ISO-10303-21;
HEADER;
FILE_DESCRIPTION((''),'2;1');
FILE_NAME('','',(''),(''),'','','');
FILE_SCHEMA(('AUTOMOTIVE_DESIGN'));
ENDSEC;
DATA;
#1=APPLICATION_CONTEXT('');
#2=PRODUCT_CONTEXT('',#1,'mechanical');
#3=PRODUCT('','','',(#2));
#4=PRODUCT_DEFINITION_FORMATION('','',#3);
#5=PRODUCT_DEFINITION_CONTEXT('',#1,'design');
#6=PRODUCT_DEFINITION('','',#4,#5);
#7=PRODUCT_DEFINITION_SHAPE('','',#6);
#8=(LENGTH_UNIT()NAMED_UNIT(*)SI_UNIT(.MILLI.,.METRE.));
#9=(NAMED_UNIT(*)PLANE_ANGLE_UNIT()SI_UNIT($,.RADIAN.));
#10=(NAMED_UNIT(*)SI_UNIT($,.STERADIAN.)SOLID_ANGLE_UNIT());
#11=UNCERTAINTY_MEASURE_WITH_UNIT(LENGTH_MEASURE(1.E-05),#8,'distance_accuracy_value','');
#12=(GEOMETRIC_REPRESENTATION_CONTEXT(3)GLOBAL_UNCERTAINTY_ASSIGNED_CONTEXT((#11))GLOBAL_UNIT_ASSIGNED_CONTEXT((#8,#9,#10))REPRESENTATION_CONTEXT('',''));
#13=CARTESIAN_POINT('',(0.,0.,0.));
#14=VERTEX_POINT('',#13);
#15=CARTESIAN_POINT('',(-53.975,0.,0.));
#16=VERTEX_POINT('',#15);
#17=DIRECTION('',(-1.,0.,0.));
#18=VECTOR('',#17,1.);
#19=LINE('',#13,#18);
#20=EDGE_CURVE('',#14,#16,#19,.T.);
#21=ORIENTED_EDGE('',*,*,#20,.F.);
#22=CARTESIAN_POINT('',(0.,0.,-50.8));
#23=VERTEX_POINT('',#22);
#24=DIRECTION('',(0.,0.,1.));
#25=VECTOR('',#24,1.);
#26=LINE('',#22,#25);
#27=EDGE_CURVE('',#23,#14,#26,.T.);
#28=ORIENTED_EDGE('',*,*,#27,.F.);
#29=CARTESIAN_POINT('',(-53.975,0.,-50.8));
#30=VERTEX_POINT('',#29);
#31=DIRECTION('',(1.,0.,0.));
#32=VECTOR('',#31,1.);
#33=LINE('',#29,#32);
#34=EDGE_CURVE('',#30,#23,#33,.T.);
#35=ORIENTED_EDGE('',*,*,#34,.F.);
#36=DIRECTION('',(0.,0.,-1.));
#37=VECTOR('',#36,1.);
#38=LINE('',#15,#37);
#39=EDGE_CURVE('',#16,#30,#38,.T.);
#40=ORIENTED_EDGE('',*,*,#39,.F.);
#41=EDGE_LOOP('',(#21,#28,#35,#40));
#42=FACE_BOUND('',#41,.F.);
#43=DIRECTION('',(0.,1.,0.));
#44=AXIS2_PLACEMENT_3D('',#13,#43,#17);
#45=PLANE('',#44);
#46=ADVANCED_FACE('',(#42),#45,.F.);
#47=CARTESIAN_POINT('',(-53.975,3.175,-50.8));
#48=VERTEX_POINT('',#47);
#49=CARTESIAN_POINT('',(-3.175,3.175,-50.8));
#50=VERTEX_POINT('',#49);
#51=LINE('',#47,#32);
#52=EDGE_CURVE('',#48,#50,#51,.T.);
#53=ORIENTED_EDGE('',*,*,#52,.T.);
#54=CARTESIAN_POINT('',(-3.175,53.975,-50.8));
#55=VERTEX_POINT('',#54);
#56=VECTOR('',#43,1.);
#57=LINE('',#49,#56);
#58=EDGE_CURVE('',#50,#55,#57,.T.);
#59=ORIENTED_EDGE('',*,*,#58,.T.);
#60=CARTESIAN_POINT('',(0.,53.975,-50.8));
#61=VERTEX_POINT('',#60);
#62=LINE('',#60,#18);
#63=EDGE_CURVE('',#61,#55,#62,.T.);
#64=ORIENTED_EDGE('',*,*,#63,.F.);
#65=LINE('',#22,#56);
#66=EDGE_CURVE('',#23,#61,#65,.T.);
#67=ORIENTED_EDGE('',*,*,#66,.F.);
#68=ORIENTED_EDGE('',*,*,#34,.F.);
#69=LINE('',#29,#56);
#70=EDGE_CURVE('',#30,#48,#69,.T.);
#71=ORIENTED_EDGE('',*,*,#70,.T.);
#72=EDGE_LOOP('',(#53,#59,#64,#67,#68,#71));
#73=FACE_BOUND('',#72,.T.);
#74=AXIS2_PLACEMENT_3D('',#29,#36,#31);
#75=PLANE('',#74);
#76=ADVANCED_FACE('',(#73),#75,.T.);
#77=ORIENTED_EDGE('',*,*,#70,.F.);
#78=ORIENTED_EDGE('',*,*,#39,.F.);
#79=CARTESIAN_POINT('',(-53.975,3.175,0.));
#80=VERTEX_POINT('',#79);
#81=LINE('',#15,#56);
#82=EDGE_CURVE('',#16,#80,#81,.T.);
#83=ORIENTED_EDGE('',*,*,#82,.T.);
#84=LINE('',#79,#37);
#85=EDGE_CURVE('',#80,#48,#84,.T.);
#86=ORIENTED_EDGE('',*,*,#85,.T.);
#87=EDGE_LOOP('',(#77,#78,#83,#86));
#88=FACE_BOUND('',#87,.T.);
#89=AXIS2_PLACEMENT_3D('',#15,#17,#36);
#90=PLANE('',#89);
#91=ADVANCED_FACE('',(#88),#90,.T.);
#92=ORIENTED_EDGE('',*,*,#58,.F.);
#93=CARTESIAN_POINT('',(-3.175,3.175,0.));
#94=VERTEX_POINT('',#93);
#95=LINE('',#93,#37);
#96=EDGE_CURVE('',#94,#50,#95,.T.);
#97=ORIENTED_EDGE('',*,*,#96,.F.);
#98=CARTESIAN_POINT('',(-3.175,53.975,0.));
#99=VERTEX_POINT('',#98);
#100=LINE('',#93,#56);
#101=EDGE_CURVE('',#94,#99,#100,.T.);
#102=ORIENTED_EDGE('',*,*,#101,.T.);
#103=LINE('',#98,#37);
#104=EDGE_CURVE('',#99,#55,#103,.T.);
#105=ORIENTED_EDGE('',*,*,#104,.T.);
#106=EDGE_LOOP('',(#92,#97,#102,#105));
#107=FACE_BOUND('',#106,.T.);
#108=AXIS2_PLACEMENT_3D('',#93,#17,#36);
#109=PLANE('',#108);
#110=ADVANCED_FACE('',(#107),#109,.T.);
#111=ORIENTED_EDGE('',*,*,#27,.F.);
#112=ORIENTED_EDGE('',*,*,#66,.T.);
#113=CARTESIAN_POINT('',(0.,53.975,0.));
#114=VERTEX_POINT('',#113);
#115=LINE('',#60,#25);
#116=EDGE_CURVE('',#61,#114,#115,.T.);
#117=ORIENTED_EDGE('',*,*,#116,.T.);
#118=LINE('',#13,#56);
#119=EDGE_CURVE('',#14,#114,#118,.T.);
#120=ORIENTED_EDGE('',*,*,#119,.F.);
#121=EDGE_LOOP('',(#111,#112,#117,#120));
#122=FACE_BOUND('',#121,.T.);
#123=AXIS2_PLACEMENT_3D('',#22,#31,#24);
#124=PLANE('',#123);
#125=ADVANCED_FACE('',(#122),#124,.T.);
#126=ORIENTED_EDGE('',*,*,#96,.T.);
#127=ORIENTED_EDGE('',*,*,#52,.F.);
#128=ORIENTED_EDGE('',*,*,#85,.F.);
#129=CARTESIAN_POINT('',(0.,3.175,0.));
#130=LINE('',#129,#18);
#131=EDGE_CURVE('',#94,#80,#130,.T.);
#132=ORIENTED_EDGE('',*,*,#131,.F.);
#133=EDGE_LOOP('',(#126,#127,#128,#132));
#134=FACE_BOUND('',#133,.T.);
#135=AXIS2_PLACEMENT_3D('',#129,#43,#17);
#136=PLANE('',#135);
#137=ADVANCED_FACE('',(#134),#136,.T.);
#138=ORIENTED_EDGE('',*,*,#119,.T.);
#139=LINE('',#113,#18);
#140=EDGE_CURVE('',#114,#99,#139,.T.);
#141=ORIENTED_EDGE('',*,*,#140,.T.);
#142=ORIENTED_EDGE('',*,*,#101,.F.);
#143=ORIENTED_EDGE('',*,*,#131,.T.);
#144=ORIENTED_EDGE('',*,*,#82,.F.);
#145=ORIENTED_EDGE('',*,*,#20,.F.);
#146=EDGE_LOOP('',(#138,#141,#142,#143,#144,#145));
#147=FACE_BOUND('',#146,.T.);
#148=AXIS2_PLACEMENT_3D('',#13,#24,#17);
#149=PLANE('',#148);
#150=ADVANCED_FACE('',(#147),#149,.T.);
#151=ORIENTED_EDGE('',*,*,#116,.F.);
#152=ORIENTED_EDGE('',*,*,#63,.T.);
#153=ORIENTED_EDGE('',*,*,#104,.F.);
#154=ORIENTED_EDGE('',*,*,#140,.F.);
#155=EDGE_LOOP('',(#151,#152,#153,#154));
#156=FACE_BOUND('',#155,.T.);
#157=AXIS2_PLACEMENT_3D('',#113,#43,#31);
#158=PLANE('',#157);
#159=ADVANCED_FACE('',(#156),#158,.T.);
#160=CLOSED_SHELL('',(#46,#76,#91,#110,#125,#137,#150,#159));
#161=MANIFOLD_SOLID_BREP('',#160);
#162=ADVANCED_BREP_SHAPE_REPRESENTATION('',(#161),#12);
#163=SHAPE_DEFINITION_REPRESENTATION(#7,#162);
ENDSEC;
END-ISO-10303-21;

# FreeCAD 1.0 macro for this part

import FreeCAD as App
import Part
import Sketcher

V = App.Vector
Q = App.Units.Quantity

doc = App.newDocument("Part")
body = doc.addObject("PartDesign::Body", "Body")

# Sketch on XZ plane
sketch1 = body.newObject("Sketcher::SketchObject", "Sketch")
sketch1.AttachmentSupport = (doc.getObject("XZ_Plane"), [""])
sketch1.MapMode = "FlatFace"
sketch1.addGeometry(Part.LineSegment(V(-54, 0, 0), V(0, 0, 0)), False)
sketch1.addGeometry(Part.LineSegment(V(0, 0, 0), V(0, -51, 0)), False)
sketch1.addGeometry(Part.LineSegment(V(0, -51, 0), V(-54, -51, 0)), False)
sketch1.addGeometry(Part.LineSegment(V(-54, -51, 0), V(-54, 0, 0)), False)
sketch1.addConstraint(Sketcher.Constraint("Coincident", 0, 2, 1, 1))
sketch1.addConstraint(Sketcher.Constraint("Coincident", 1, 2, 2, 1))
sketch1.addConstraint(Sketcher.Constraint("Coincident", 2, 2, 3, 1))
sketch1.addConstraint(Sketcher.Constraint("Coincident", 3, 2, 0, 1))
sketch1.addConstraint(Sketcher.Constraint("Horizontal", 0))
sketch1.addConstraint(Sketcher.Constraint("Vertical", 1))
sketch1.addConstraint(Sketcher.Constraint("Horizontal", 2))
sketch1.addConstraint(Sketcher.Constraint("Vertical", 3))
sketch1.addConstraint(Sketcher.Constraint("Coincident", 0, 2, -1, 1))
sketch1.addConstraint(Sketcher.Constraint("DistanceY", 1, 2, 1, 1, Q("2 in")))
sketch1.addConstraint(Sketcher.Constraint("DistanceX", 0, 1, 0, 2, Q("2.125 in")))
pad1 = body.newObject("PartDesign::Pad", "Pad")
pad1.Profile = sketch1
pad1.Length = Q("0.125 in")
pad1.Reversed = True

# Sketch on XZ plane
sketch2 = body.newObject("Sketcher::SketchObject", "Sketch001")
sketch2.AttachmentSupport = (doc.getObject("XZ_Plane"), [""])
sketch2.MapMode = "FlatFace"
sketch2.AttachmentOffset = App.Placement(V(0, 0, -0.125 * 25.4), App.Rotation())
sketch2.addGeometry(Part.LineSegment(V(0, 0, 0), V(0, -50.8, 0)), False)
sketch2.addGeometry(Part.LineSegment(V(0, -50.8, 0), V(-3.2, -50.8, 0)), False)
sketch2.addGeometry(Part.LineSegment(V(-3.2, -50.8, 0), V(-3.2, 0, 0)), False)
sketch2.addGeometry(Part.LineSegment(V(-3.2, 0, 0), V(0, 0, 0)), False)
sketch2.addConstraint(Sketcher.Constraint("Coincident", 0, 2, 1, 1))
sketch2.addConstraint(Sketcher.Constraint("Coincident", 1, 2, 2, 1))
sketch2.addConstraint(Sketcher.Constraint("Coincident", 2, 2, 3, 1))
sketch2.addConstraint(Sketcher.Constraint("Coincident", 3, 2, 0, 1))
sketch2.addConstraint(Sketcher.Constraint("Vertical", 0))
sketch2.addConstraint(Sketcher.Constraint("Horizontal", 1))
sketch2.addConstraint(Sketcher.Constraint("Vertical", 2))
sketch2.addConstraint(Sketcher.Constraint("Horizontal", 3))
sketch2.addConstraint(Sketcher.Constraint("Coincident", 3, 2, -1, 1))
sketch2.addConstraint(Sketcher.Constraint("DistanceX", 1, 2, 1, 1, Q("0.125 in")))
sketch2.addConstraint(Sketcher.Constraint("DistanceY", 0, 2, 0, 1, Q("2 in")))
pad2 = body.newObject("PartDesign::Pad", "Pad001")
pad2.Profile = sketch2
pad2.Length = Q("2 in")
pad2.Reversed = True

doc.recompute()
